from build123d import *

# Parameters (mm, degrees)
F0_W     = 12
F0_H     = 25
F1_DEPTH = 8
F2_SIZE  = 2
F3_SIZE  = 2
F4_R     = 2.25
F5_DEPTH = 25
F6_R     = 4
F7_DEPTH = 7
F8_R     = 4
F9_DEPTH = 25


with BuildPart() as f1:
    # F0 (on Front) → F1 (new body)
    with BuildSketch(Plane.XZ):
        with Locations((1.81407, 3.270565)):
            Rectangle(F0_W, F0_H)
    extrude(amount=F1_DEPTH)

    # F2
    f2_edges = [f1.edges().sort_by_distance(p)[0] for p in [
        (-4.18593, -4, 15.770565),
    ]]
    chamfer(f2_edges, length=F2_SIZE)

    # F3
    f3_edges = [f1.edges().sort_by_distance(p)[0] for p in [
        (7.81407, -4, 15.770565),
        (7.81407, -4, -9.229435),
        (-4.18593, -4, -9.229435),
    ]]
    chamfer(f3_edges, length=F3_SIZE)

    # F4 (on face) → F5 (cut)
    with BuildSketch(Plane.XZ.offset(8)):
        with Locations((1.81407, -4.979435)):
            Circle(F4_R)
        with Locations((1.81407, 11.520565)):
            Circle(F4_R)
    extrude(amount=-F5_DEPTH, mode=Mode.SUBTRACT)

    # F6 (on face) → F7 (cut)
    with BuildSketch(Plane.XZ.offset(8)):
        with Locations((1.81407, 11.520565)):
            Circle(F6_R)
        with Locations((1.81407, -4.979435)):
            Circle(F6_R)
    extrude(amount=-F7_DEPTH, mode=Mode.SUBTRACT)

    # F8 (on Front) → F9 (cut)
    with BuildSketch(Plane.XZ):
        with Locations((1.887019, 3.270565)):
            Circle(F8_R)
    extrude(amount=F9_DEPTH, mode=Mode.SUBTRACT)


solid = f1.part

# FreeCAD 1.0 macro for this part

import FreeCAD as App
import Part
import Sketcher
from FreeCAD import Vector
Q = App.Units.Quantity


def edges_at(feature, points):
    """Names of the edges that pass closest to the given points."""
    edges = feature.Shape.Edges
    near = lambda p: min(range(len(edges)), key=lambda i: edges[i].distToShape(Part.Vertex(*p))[0])
    return sorted({f"Edge{near(p) + 1}" for p in points})

doc = App.newDocument("Part")
body = doc.addObject("PartDesign::Body", "Body")

sketch1 = body.newObject("Sketcher::SketchObject", "Sketch")
sketch1.AttachmentSupport = (doc.getObject("XZ_Plane"), [""])
sketch1.MapMode = "FlatFace"
sketch1.addGeometry([
    Part.LineSegment(Vector(-4, 16, 0), Vector(-4, -9, 0)),
    Part.LineSegment(Vector(-4, -9, 0), Vector(8, -9, 0)),
    Part.LineSegment(Vector(8, -9, 0), Vector(8, 16, 0)),
    Part.LineSegment(Vector(8, 16, 0), Vector(-4, 16, 0)),
], False)
sketch1.addConstraint([
    Sketcher.Constraint("Coincident", 0, 2, 1, 1),
    Sketcher.Constraint("Coincident", 1, 2, 2, 1),
    Sketcher.Constraint("Coincident", 2, 2, 3, 1),
    Sketcher.Constraint("Coincident", 3, 2, 0, 1),
    Sketcher.Constraint("Vertical", 0),
    Sketcher.Constraint("Horizontal", 1),
    Sketcher.Constraint("Vertical", 2),
    Sketcher.Constraint("Horizontal", 3),
    Sketcher.Constraint("DistanceX", 1, 1, 1, 2, Q("12 mm")),
    Sketcher.Constraint("DistanceY", 0, 2, 0, 1, Q("25 mm")),
    Sketcher.Constraint("DistanceX", 0, 2, -1, 1, Q("4.18593 mm")),
    Sketcher.Constraint("DistanceY", 0, 2, -1, 1, Q("9.229435 mm")),
])
pad1 = body.newObject("PartDesign::Pad", "Pad")
pad1.Profile = sketch1
pad1.Length = 8
doc.recompute()

chamfer = body.newObject("PartDesign::Chamfer", "Chamfer")
chamfer.Base = (pad1, edges_at(pad1, [(-4.186, -4, 15.771)]))
chamfer.Size = 2
doc.recompute()

chamfer2 = body.newObject("PartDesign::Chamfer", "Chamfer001")
chamfer2.Base = (chamfer, edges_at(chamfer, [(7.814, -4, 15.771), (7.814, -4, -9.229), (-4.186, -4, -9.229)]))
chamfer2.Size = 2

sketch2 = body.newObject("Sketcher::SketchObject", "Sketch001")
sketch2.AttachmentSupport = (doc.getObject("XZ_Plane"), [""])
sketch2.MapMode = "FlatFace"
sketch2.AttachmentOffset = App.Placement(Vector(0, 0, 8), App.Rotation())
sketch2.addGeometry([
    Part.Circle(Vector(1.8, -5, 0), Vector(0, 0, 1), 2.2),
    Part.Circle(Vector(1.8, 11.5, 0), Vector(0, 0, 1), 2.2),
], False)
sketch2.addConstraint([
    Sketcher.Constraint("Equal", 0, 1),
    Sketcher.Constraint("Vertical", 0, 3, 1, 3),
    Sketcher.Constraint("Diameter", 0, Q("4.5 mm")),
    Sketcher.Constraint("DistanceY", 0, 3, 1, 3, Q("16.5 mm")),
    Sketcher.Constraint("DistanceX", -1, 1, 0, 3, Q("1.81407 mm")),
    Sketcher.Constraint("DistanceY", 0, 3, -1, 1, Q("4.979435 mm")),
])
pocket1 = body.newObject("PartDesign::Pocket", "Pocket")
pocket1.Profile = sketch2
pocket1.Length = 25

sketch3 = body.newObject("Sketcher::SketchObject", "Sketch002")
sketch3.AttachmentSupport = (doc.getObject("XZ_Plane"), [""])
sketch3.MapMode = "FlatFace"
sketch3.AttachmentOffset = App.Placement(Vector(0, 0, 8), App.Rotation())
sketch3.addGeometry([
    Part.Circle(Vector(1.8, 11.5, 0), Vector(0, 0, 1), 4),
    Part.Circle(Vector(1.8, -5, 0), Vector(0, 0, 1), 4),
], False)
sketch3.addConstraint([
    Sketcher.Constraint("Equal", 0, 1),
    Sketcher.Constraint("Vertical", 0, 3, 1, 3),
    Sketcher.Constraint("Diameter", 0, Q("8 mm")),
    Sketcher.Constraint("DistanceY", 1, 3, 0, 3, Q("16.5 mm")),
    Sketcher.Constraint("DistanceX", -1, 1, 0, 3, Q("1.81407 mm")),
    Sketcher.Constraint("DistanceY", -1, 1, 0, 3, Q("11.520565 mm")),
])
pocket2 = body.newObject("PartDesign::Pocket", "Pocket001")
pocket2.Profile = sketch3
pocket2.Length = 7

sketch4 = body.newObject("Sketcher::SketchObject", "Sketch003")
sketch4.AttachmentSupport = (doc.getObject("XZ_Plane"), [""])
sketch4.MapMode = "FlatFace"
sketch4.addGeometry(Part.Circle(Vector(1.9, 3.3, 0), Vector(0, 0, 1), 4), False)
sketch4.addConstraint([
    Sketcher.Constraint("Diameter", 0, Q("8 mm")),
    Sketcher.Constraint("DistanceX", -1, 1, 0, 3, Q("1.887019 mm")),
    Sketcher.Constraint("DistanceY", -1, 1, 0, 3, Q("3.270565 mm")),
])
pocket3 = body.newObject("PartDesign::Pocket", "Pocket002")
pocket3.Profile = sketch4
pocket3.Length = 25
pocket3.Reversed = True

doc.recompute()
